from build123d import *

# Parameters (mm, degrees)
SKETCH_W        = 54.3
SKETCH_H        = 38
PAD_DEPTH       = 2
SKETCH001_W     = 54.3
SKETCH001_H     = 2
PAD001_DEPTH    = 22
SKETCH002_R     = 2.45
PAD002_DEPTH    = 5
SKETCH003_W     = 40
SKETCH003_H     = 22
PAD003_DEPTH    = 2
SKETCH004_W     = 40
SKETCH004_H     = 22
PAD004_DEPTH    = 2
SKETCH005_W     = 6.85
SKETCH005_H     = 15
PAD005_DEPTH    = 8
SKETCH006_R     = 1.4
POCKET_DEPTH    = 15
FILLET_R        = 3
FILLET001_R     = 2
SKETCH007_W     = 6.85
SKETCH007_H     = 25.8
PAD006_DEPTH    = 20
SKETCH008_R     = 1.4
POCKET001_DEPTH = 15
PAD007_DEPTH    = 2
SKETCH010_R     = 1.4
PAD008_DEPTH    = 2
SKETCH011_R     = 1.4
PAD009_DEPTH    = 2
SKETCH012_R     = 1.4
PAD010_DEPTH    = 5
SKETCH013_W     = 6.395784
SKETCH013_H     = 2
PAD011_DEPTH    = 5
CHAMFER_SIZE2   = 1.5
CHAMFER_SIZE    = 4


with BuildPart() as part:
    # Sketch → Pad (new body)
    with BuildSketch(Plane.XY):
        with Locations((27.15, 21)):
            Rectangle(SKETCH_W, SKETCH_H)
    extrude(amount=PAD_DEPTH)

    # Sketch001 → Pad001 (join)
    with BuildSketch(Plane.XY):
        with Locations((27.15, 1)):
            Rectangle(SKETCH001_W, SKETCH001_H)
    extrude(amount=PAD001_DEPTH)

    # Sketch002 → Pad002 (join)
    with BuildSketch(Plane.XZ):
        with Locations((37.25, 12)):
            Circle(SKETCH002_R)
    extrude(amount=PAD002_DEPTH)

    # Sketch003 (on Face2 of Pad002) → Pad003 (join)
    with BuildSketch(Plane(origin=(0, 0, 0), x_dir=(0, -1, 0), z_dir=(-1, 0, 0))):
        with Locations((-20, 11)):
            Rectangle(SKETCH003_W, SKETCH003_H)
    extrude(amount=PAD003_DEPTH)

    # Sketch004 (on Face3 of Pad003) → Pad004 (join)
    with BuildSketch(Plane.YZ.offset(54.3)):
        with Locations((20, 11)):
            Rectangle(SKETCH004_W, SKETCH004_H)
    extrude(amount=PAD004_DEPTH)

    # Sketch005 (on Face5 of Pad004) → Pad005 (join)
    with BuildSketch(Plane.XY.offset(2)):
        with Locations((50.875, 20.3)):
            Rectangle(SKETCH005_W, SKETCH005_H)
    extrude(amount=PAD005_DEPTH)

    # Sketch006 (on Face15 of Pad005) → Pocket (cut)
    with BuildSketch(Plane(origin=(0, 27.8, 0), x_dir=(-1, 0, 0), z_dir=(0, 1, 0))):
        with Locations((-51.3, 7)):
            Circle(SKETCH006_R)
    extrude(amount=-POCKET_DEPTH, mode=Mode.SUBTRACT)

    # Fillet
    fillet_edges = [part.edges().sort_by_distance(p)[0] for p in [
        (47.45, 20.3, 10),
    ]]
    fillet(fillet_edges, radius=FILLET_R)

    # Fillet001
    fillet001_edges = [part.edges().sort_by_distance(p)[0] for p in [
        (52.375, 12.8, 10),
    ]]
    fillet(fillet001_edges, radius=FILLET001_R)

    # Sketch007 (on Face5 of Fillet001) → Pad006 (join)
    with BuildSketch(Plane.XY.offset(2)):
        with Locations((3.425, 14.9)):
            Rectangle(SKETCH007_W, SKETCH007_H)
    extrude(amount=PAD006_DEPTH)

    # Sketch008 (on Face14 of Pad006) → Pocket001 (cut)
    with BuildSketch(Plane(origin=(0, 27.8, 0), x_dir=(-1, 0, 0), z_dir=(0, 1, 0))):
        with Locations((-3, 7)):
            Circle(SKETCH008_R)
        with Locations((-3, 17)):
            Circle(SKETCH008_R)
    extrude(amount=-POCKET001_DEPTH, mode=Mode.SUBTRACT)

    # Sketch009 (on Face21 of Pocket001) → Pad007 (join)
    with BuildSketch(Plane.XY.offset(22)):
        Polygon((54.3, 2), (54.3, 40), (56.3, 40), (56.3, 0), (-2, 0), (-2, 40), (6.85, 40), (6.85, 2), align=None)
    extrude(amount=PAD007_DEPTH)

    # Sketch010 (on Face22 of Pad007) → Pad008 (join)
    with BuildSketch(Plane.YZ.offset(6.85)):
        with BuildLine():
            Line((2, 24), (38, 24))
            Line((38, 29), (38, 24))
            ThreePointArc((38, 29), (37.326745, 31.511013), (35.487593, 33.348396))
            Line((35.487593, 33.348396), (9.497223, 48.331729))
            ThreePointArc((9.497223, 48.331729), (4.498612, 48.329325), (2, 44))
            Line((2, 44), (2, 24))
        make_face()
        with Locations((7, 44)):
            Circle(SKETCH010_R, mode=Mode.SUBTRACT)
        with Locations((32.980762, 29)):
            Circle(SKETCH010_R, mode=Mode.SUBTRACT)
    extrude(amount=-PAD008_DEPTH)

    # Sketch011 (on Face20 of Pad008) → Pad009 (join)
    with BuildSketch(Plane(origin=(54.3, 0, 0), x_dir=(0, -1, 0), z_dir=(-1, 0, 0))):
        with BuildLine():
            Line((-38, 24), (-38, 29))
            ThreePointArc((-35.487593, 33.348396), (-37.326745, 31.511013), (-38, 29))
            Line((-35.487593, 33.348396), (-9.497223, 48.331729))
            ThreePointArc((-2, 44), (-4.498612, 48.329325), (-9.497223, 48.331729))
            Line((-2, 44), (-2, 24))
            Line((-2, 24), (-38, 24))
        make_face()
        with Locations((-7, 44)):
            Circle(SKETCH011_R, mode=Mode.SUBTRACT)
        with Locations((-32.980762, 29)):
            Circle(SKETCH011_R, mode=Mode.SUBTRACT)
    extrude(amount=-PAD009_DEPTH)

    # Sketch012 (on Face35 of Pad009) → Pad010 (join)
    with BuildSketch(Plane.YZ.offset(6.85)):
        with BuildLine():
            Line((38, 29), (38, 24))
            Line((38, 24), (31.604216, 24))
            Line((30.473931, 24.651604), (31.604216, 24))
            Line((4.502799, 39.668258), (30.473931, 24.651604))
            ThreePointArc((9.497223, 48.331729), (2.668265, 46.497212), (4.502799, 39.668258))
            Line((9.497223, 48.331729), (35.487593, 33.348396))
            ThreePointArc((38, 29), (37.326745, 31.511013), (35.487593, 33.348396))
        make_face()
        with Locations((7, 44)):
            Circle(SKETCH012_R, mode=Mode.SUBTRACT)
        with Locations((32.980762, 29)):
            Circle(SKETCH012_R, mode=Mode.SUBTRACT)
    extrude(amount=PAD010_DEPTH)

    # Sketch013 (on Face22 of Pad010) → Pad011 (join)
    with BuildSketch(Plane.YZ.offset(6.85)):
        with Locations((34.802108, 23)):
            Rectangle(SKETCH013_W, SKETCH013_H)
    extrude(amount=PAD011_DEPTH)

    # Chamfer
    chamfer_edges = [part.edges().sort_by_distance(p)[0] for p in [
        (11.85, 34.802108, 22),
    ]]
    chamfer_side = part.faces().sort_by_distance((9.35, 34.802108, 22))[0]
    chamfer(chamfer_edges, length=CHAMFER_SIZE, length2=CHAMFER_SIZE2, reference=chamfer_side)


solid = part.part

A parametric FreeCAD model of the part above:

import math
import FreeCAD as App
import Part
import Sketcher
from FreeCAD import Vector


def edges_at(feature, points):
    """Names of the edges that pass closest to the given points."""
    edges = feature.Shape.Edges
    near = lambda p: min(range(len(edges)), key=lambda i: edges[i].distToShape(Part.Vertex(*p))[0])
    return sorted({f"Edge{near(p) + 1}" for p in points})


def add_polygon(sketch, points):
    """Adds a closed chain of lines whose ends are joined by coincident constraints."""
    first, n = sketch.GeometryCount, len(points)
    for a, b in zip(points, points[1:] + points[:1]):
        sketch.addGeometry(Part.LineSegment(App.Vector(*a, 0), App.Vector(*b, 0)), False)
    for i in range(n):
        sketch.addConstraint(Sketcher.Constraint("Coincident", first + i, 2, first + (i + 1) % n, 1))

doc = App.newDocument("Part")
body = doc.addObject("PartDesign::Body", "Body")

# Sketch on XY plane
sketch1 = doc.addObject("Sketcher::SketchObject", "Sketch")
body.addObject(sketch1)
sketch1.AttachmentSupport = (doc.XY_Plane, [""])
sketch1.MapMode = "FlatFace"
add_polygon(sketch1, [(0, 40), (0, 2), (54, 2), (54, 40)])  # lines 0-3
sketch1.addConstraint(Sketcher.Constraint("Vertical", 0))
sketch1.addConstraint(Sketcher.Constraint("Horizontal", 1))
sketch1.addConstraint(Sketcher.Constraint("Vertical", 2))
sketch1.addConstraint(Sketcher.Constraint("Horizontal", 3))
sketch1.addConstraint(Sketcher.Constraint("PointOnObject", 0, 2, -2))
sketch1.addConstraint(Sketcher.Constraint("DistanceY", 0, 2, 0, 1, 38.0))
sketch1.addConstraint(Sketcher.Constraint("DistanceX", 1, 1, 1, 2, 54.3))
sketch1.addConstraint(Sketcher.Constraint("DistanceY", -1, 1, 0, 2, 2.0))
pad1 = doc.addObject("PartDesign::Pad", "Pad")
body.addObject(pad1)
pad1.Profile = sketch1
pad1.Length = 2

# Sketch on XY plane
sketch2 = doc.addObject("Sketcher::SketchObject", "Sketch001")
body.addObject(sketch2)
sketch2.AttachmentSupport = (doc.XY_Plane, [""])
sketch2.MapMode = "FlatFace"
add_polygon(sketch2, [(0, 2), (0, 0), (54.3, 0), (54.3, 2)])  # lines 0-3
sketch2.addConstraint(Sketcher.Constraint("Vertical", 0))
sketch2.addConstraint(Sketcher.Constraint("Horizontal", 1))
sketch2.addConstraint(Sketcher.Constraint("Vertical", 2))
sketch2.addConstraint(Sketcher.Constraint("Horizontal", 3))
sketch2.addConstraint(Sketcher.Constraint("Coincident", 0, 2, -1, 1))
sketch2.addConstraint(Sketcher.Constraint("DistanceY", 0, 2, 0, 1, 2.0))
sketch2.addConstraint(Sketcher.Constraint("DistanceX", 1, 1, 1, 2, 54.3))
pad2 = doc.addObject("PartDesign::Pad", "Pad001")
body.addObject(pad2)
pad2.Profile = sketch2
pad2.Length = 22

# Sketch on XZ plane
sketch3 = doc.addObject("Sketcher::SketchObject", "Sketch002")
body.addObject(sketch3)
sketch3.AttachmentSupport = (doc.XZ_Plane, [""])
sketch3.MapMode = "FlatFace"
sketch3.addGeometry(Part.Circle(Vector(37.2, 12, 0), Vector(0, 0, 1), 2.5), False)
sketch3.addConstraint(Sketcher.Constraint("Diameter", 0, 4.9))
sketch3.addConstraint(Sketcher.Constraint("DistanceY", -1, 1, 0, 3, 12.0))
sketch3.addConstraint(Sketcher.Constraint("DistanceX", -1, 1, 0, 3, 37.25))
pad3 = doc.addObject("PartDesign::Pad", "Pad002")
body.addObject(pad3)
pad3.Profile = sketch3
pad3.Length = 5

# Sketch on YZ plane
sketch4 = doc.addObject("Sketcher::SketchObject", "Sketch003")
body.addObject(sketch4)
sketch4.AttachmentSupport = (doc.YZ_Plane, [""])
sketch4.MapMode = "FlatFace"
add_polygon(sketch4, [(40, 22), (40, 0), (0, 0), (0, 22)])  # lines 0-3
sketch4.addConstraint(Sketcher.Constraint("Vertical", 0))
sketch4.addConstraint(Sketcher.Constraint("Horizontal", 1))
sketch4.addConstraint(Sketcher.Constraint("Vertical", 2))
sketch4.addConstraint(Sketcher.Constraint("Horizontal", 3))
sketch4.addConstraint(Sketcher.Constraint("Coincident", 1, 2, -1, 1))
sketch4.addConstraint(Sketcher.Constraint("DistanceX", 1, 2, 1, 1, 40.0))
sketch4.addConstraint(Sketcher.Constraint("DistanceY", 0, 2, 0, 1, 22.0))
pad4 = doc.addObject("PartDesign::Pad", "Pad003")
body.addObject(pad4)
pad4.Profile = sketch4
pad4.Length = 2
pad4.Reversed = True

# Sketch on YZ plane
sketch5 = doc.addObject("Sketcher::SketchObject", "Sketch004")
body.addObject(sketch5)
sketch5.AttachmentSupport = (doc.YZ_Plane, [""])
sketch5.MapMode = "FlatFace"
sketch5.AttachmentOffset = App.Placement(Vector(0, 0, 54.3), App.Rotation())
add_polygon(sketch5, [(0, 22), (0, 0), (40, 0), (40, 22)])  # lines 0-3
sketch5.addConstraint(Sketcher.Constraint("Vertical", 0))
sketch5.addConstraint(Sketcher.Constraint("Horizontal", 1))
sketch5.addConstraint(Sketcher.Constraint("Vertical", 2))
sketch5.addConstraint(Sketcher.Constraint("Horizontal", 3))
sketch5.addConstraint(Sketcher.Constraint("Coincident", 0, 2, -1, 1))
sketch5.addConstraint(Sketcher.Constraint("DistanceX", 1, 1, 1, 2, 40.0))
sketch5.addConstraint(Sketcher.Constraint("DistanceY", 0, 2, 0, 1, 22.0))
pad5 = doc.addObject("PartDesign::Pad", "Pad004")
body.addObject(pad5)
pad5.Profile = sketch5
pad5.Length = 2

# Sketch on XY plane
sketch6 = doc.addObject("Sketcher::SketchObject", "Sketch005")
body.addObject(sketch6)
sketch6.AttachmentSupport = (doc.XY_Plane, [""])
sketch6.MapMode = "FlatFace"
sketch6.AttachmentOffset = App.Placement(Vector(0, 0, 2), App.Rotation())
add_polygon(sketch6, [(47, 28), (47, 13), (54, 13), (54, 28)])  # lines 0-3
sketch6.addConstraint(Sketcher.Constraint("Vertical", 0))
sketch6.addConstraint(Sketcher.Constraint("Horizontal", 1))
sketch6.addConstraint(Sketcher.Constraint("Vertical", 2))
sketch6.addConstraint(Sketcher.Constraint("Horizontal", 3))
sketch6.addConstraint(Sketcher.Constraint("DistanceY", 0, 2, 0, 1, 15.0))
sketch6.addConstraint(Sketcher.Constraint("DistanceX", 1, 1, 1, 2, 6.85))
sketch6.addConstraint(Sketcher.Constraint("DistanceY", -1, 1, 0, 2, 12.8))
sketch6.addConstraint(Sketcher.Constraint("DistanceX", -1, 1, 1, 2, 54.3))
pad6 = doc.addObject("PartDesign::Pad", "Pad005")
body.addObject(pad6)
pad6.Profile = sketch6
pad6.Length = 8

# Sketch on XZ plane
sketch7 = doc.addObject("Sketcher::SketchObject", "Sketch006")
body.addObject(sketch7)
sketch7.AttachmentSupport = (doc.XZ_Plane, [""])
sketch7.MapMode = "FlatFace"
sketch7.AttachmentOffset = App.Placement(Vector(0, 0, -27.8), App.Rotation())
sketch7.addGeometry(Part.Circle(Vector(51.3, 7, 0), Vector(0, 0, 1), 1.4), False)
sketch7.addConstraint(Sketcher.Constraint("Diameter", 0, 2.8))
sketch7.addConstraint(Sketcher.Constraint("DistanceY", -1, 1, 0, 3, 7.0))
sketch7.addConstraint(Sketcher.Constraint("DistanceX", -1, 1, 0, 3, 51.3))
pocket1 = doc.addObject("PartDesign::Pocket", "Pocket")
body.addObject(pocket1)
pocket1.Profile = sketch7
pocket1.Length = 15
pocket1.Reversed = True
doc.recompute()

fillet = doc.addObject("PartDesign::Fillet", "Fillet")
body.addObject(fillet)
fillet.Base = (pocket1, edges_at(pocket1, [(47.45, 20.3, 10)]))
fillet.Radius = 3
doc.recompute()

fillet2 = doc.addObject("PartDesign::Fillet", "Fillet001")
body.addObject(fillet2)
fillet2.Base = (fillet, edges_at(fillet, [(52.375, 12.8, 10)]))
fillet2.Radius = 2

# Sketch on XY plane
sketch8 = doc.addObject("Sketcher::SketchObject", "Sketch007")
body.addObject(sketch8)
sketch8.AttachmentSupport = (doc.XY_Plane, [""])
sketch8.MapMode = "FlatFace"
sketch8.AttachmentOffset = App.Placement(Vector(0, 0, 2), App.Rotation())
add_polygon(sketch8, [(0, 28), (0, 2), (7, 2), (7, 28)])  # lines 0-3
sketch8.addConstraint(Sketcher.Constraint("Vertical", 0))
sketch8.addConstraint(Sketcher.Constraint("Horizontal", 1))
sketch8.addConstraint(Sketcher.Constraint("Vertical", 2))
sketch8.addConstraint(Sketcher.Constraint("Horizontal", 3))
sketch8.addConstraint(Sketcher.Constraint("PointOnObject", 0, 2, -2))
sketch8.addConstraint(Sketcher.Constraint("DistanceY", 0, 2, 0, 1, 25.8))
sketch8.addConstraint(Sketcher.Constraint("DistanceY", -1, 1, 0, 2, 2.0))
sketch8.addConstraint(Sketcher.Constraint("DistanceX", 1, 1, 1, 2, 6.85))
pad7 = doc.addObject("PartDesign::Pad", "Pad006")
body.addObject(pad7)
pad7.Profile = sketch8
pad7.Length = 20

# Sketch on XZ plane
sketch9 = doc.addObject("Sketcher::SketchObject", "Sketch008")
body.addObject(sketch9)
sketch9.AttachmentSupport = (doc.XZ_Plane, [""])
sketch9.MapMode = "FlatFace"
sketch9.AttachmentOffset = App.Placement(Vector(0, 0, -27.8), App.Rotation())
sketch9.addGeometry(Part.Circle(Vector(3, 7, 0), Vector(0, 0, 1), 1.4), False)
sketch9.addGeometry(Part.Circle(Vector(3, 17, 0), Vector(0, 0, 1), 1.4), False)
sketch9.addConstraint(Sketcher.Constraint("Equal", 0, 1))
sketch9.addConstraint(Sketcher.Constraint("Vertical", 0, 3, 1, 3))
sketch9.addConstraint(Sketcher.Constraint("Diameter", 0, 2.8))
sketch9.addConstraint(Sketcher.Constraint("DistanceX", -1, 1, 0, 3, 3.0))
sketch9.addConstraint(Sketcher.Constraint("DistanceY", -1, 1, 0, 3, 7.0))
sketch9.addConstraint(Sketcher.Constraint("DistanceY", -1, 1, 1, 3, 17.0))
pocket2 = doc.addObject("PartDesign::Pocket", "Pocket001")
body.addObject(pocket2)
pocket2.Profile = sketch9
pocket2.Length = 15
pocket2.Reversed = True

# Sketch on XY plane
sketch10 = doc.addObject("Sketcher::SketchObject", "Sketch009")
body.addObject(sketch10)
sketch10.AttachmentSupport = (doc.XY_Plane, [""])
sketch10.MapMode = "FlatFace"
sketch10.AttachmentOffset = App.Placement(Vector(0, 0, 22), App.Rotation())
add_polygon(sketch10, [(54.3, 40), (54.3, 2), (6.8, 2), (6.8, 40), (-2, 40), (-2, 0), (56.3, 0), (56.3, 40)])  # lines 0-7
sketch10.addConstraint(Sketcher.Constraint("Vertical", 0))
sketch10.addConstraint(Sketcher.Constraint("Horizontal", 1))
sketch10.addConstraint(Sketcher.Constraint("Vertical", 2))
sketch10.addConstraint(Sketcher.Constraint("Horizontal", 3))
sketch10.addConstraint(Sketcher.Constraint("Vertical", 4))
sketch10.addConstraint(Sketcher.Constraint("Horizontal", 5))
sketch10.addConstraint(Sketcher.Constraint("Vertical", 6))
sketch10.addConstraint(Sketcher.Constraint("Horizontal", 7))
sketch10.addConstraint(Sketcher.Constraint("PointOnObject", 4, 2, -1))
sketch10.addConstraint(Sketcher.Constraint("Horizontal", 3, 2, 6, 2))
sketch10.addConstraint(Sketcher.Constraint("DistanceX", 7, 2, 7, 1, 2.0))
sketch10.addConstraint(Sketcher.Constraint("DistanceY", 0, 2, 0, 1, 38.0))
sketch10.addConstraint(Sketcher.Constraint("DistanceY", 4, 2, 4, 1, 40.0))
sketch10.addConstraint(Sketcher.Constraint("DistanceX", 5, 1, 5, 2, 58.3))
sketch10.addConstraint(Sketcher.Constraint("DistanceX", 3, 2, -1, 1, 2.0))
sketch10.addConstraint(Sketcher.Constraint("DistanceX", 1, 2, 1, 1, 47.45))
pad8 = doc.addObject("PartDesign::Pad", "Pad007")
body.addObject(pad8)
pad8.Profile = sketch10
pad8.Length = 2

# Sketch on YZ plane
sketch11 = doc.addObject("Sketcher::SketchObject", "Sketch010")
body.addObject(sketch11)
sketch11.AttachmentSupport = (doc.YZ_Plane, [""])
sketch11.MapMode = "FlatFace"
sketch11.AttachmentOffset = App.Placement(Vector(0, 0, 6.85), App.Rotation())
sketch11.addGeometry(Part.LineSegment(Vector(2, 24, 0), Vector(38, 24, 0)), False)
sketch11.addGeometry(Part.LineSegment(Vector(38, 24, 0), Vector(38, 29, 0)), False)
sketch11.addGeometry(Part.ArcOfCircle(Part.Circle(Vector(33, 29, 0), Vector(0, 0, 1), 5), math.radians(0), math.radians(60)), False)
sketch11.addGeometry(Part.LineSegment(Vector(35.5, 33.3, 0), Vector(9.5, 48.3, 0)), False)
sketch11.addGeometry(Part.ArcOfCircle(Part.Circle(Vector(7, 44, 0), Vector(0, 0, 1), 5), math.radians(60), math.radians(180)), False)
sketch11.addGeometry(Part.LineSegment(Vector(2, 44, 0), Vector(2, 24, 0)), False)
sketch11.addGeometry(Part.Circle(Vector(33, 29, 0), Vector(0, 0, 1), 1.4), False)
sketch11.addGeometry(Part.Circle(Vector(7, 44, 0), Vector(0, 0, 1), 1.4), False)
sketch11.addConstraint(Sketcher.Constraint("Coincident", 0, 2, 1, 1))
sketch11.addConstraint(Sketcher.Constraint("Tangent", 1, 2, 2, 1))
sketch11.addConstraint(Sketcher.Constraint("Tangent", 2, 2, 3, 1))
sketch11.addConstraint(Sketcher.Constraint("Tangent", 3, 2, 4, 1))
sketch11.addConstraint(Sketcher.Constraint("Tangent", 4, 2, 5, 1))
sketch11.addConstraint(Sketcher.Constraint("Coincident", 5, 2, 0, 1))
sketch11.addConstraint(Sketcher.Constraint("Horizontal", 0))
sketch11.addConstraint(Sketcher.Constraint("Vertical", 1))
sketch11.addConstraint(Sketcher.Constraint("Vertical", 5))
sketch11.addConstraint(Sketcher.Constraint("Coincident", 6, 3, 2, 3))
sketch11.addConstraint(Sketcher.Constraint("Coincident", 7, 3, 4, 3))
sketch11.addConstraint(Sketcher.Constraint("Equal", 6, 7))
sketch11.addConstraint(Sketcher.Constraint("Radius", 4, 5.0))
sketch11.addConstraint(Sketcher.Constraint("Diameter", 6, 2.8))
sketch11.addConstraint(Sketcher.Constraint("DistanceX", 0, 1, 0, 2, 36.0))
sketch11.addConstraint(Sketcher.Constraint("DistanceY", 1, 1, 1, 2, 5.0))
sketch11.addConstraint(Sketcher.Constraint("DistanceY", 5, 2, 5, 1, 20.0))
sketch11.addConstraint(Sketcher.Constraint("DistanceY", -1, 1, 2, 3, 29.000002))
sketch11.addConstraint(Sketcher.Constraint("DistanceX", -1, 1, 4, 3, 7.0))
sketch11.addConstraint(Sketcher.Constraint("Radius", 2, 5.019235))
pad9 = doc.addObject("PartDesign::Pad", "Pad008")
body.addObject(pad9)
pad9.Profile = sketch11
pad9.Length = 2
pad9.Reversed = True

# Sketch on YZ plane
sketch12 = doc.addObject("Sketcher::SketchObject", "Sketch011")
body.addObject(sketch12)
sketch12.AttachmentSupport = (doc.YZ_Plane, [""])
sketch12.MapMode = "FlatFace"
sketch12.AttachmentOffset = App.Placement(Vector(0, 0, 54.3), App.Rotation())
sketch12.addGeometry(Part.LineSegment(Vector(38, 29, 0), Vector(38, 24, 0)), False)
sketch12.addGeometry(Part.LineSegment(Vector(38, 24, 0), Vector(2, 24, 0)), False)
sketch12.addGeometry(Part.LineSegment(Vector(2, 24, 0), Vector(2, 44, 0)), False)
sketch12.addGeometry(Part.ArcOfCircle(Part.Circle(Vector(7, 44, 0), Vector(0, 0, 1), 5), math.radians(60), math.radians(180)), False)
sketch12.addGeometry(Part.LineSegment(Vector(9.5, 48.3, 0), Vector(35.5, 33.3, 0)), False)
sketch12.addGeometry(Part.ArcOfCircle(Part.Circle(Vector(33, 29, 0), Vector(0, 0, 1), 5), math.radians(0), math.radians(60)), False)
sketch12.addGeometry(Part.Circle(Vector(33, 29, 0), Vector(0, 0, 1), 1.4), False)
sketch12.addGeometry(Part.Circle(Vector(7, 44, 0), Vector(0, 0, 1), 1.4), False)
sketch12.addConstraint(Sketcher.Constraint("Coincident", 0, 2, 1, 1))
sketch12.addConstraint(Sketcher.Constraint("Coincident", 1, 2, 2, 1))
sketch12.addConstraint(Sketcher.Constraint("Tangent", 2, 2, 3, 2))
sketch12.addConstraint(Sketcher.Constraint("Tangent", 3, 1, 4, 1))
sketch12.addConstraint(Sketcher.Constraint("Tangent", 4, 2, 5, 2))
sketch12.addConstraint(Sketcher.Constraint("Tangent", 5, 1, 0, 1))
sketch12.addConstraint(Sketcher.Constraint("Vertical", 0))
sketch12.addConstraint(Sketcher.Constraint("Horizontal", 1))
sketch12.addConstraint(Sketcher.Constraint("Vertical", 2))
sketch12.addConstraint(Sketcher.Constraint("Coincident", 6, 3, 5, 3))
sketch12.addConstraint(Sketcher.Constraint("Coincident", 7, 3, 3, 3))
sketch12.addConstraint(Sketcher.Constraint("Equal", 6, 7))
sketch12.addConstraint(Sketcher.Constraint("Radius", 3, 5.0))
sketch12.addConstraint(Sketcher.Constraint("Diameter", 6, 2.8))
sketch12.addConstraint(Sketcher.Constraint("DistanceX", 1, 2, 1, 1, 36.0))
sketch12.addConstraint(Sketcher.Constraint("DistanceY", 0, 2, 0, 1, 5.0))
sketch12.addConstraint(Sketcher.Constraint("DistanceY", 2, 1, 2, 2, 20.0))
sketch12.addConstraint(Sketcher.Constraint("DistanceX", -1, 1, 3, 3, 7.0))
sketch12.addConstraint(Sketcher.Constraint("DistanceY", -1, 1, 3, 3, 44.0))
sketch12.addConstraint(Sketcher.Constraint("Radius", 5, 5.019235))
pad10 = doc.addObject("PartDesign::Pad", "Pad009")
body.addObject(pad10)
pad10.Profile = sketch12
pad10.Length = 2

# Sketch on YZ plane
sketch13 = doc.addObject("Sketcher::SketchObject", "Sketch012")
body.addObject(sketch13)
sketch13.AttachmentSupport = (doc.YZ_Plane, [""])
sketch13.MapMode = "FlatFace"
sketch13.AttachmentOffset = App.Placement(Vector(0, 0, 6.85), App.Rotation())
sketch13.addGeometry(Part.LineSegment(Vector(38, 24, 0), Vector(38, 29, 0)), False)
sketch13.addGeometry(Part.ArcOfCircle(Part.Circle(Vector(33, 29, 0), Vector(0, 0, 1), 5), math.radians(0), math.radians(60)), False)
sketch13.addGeometry(Part.LineSegment(Vector(35.5, 33.3, 0), Vector(9.5, 48.3, 0)), False)
sketch13.addGeometry(Part.ArcOfCircle(Part.Circle(Vector(7, 44, 0), Vector(0, 0, 1), 5), math.radians(60), math.radians(240)), False)
sketch13.addGeometry(Part.LineSegment(Vector(4.5, 39.7, 0), Vector(30.5, 24.7, 0)), False)
sketch13.addGeometry(Part.LineSegment(Vector(30.5, 24.7, 0), Vector(31.6, 24, 0)), False)
sketch13.addGeometry(Part.LineSegment(Vector(31.6, 24, 0), Vector(38, 24, 0)), False)
sketch13.addGeometry(Part.Circle(Vector(33, 29, 0), Vector(0, 0, 1), 1.4), False)
sketch13.addGeometry(Part.Circle(Vector(7, 44, 0), Vector(0, 0, 1), 1.4), False)
sketch13.addConstraint(Sketcher.Constraint("Tangent", 0, 2, 1, 1))
sketch13.addConstraint(Sketcher.Constraint("Tangent", 1, 2, 2, 1))
sketch13.addConstraint(Sketcher.Constraint("Tangent", 2, 2, 3, 1))
sketch13.addConstraint(Sketcher.Constraint("Coincident", 3, 2, 4, 1))
sketch13.addConstraint(Sketcher.Constraint("Coincident", 4, 2, 5, 1))
sketch13.addConstraint(Sketcher.Constraint("Coincident", 5, 2, 6, 1))
sketch13.addConstraint(Sketcher.Constraint("Coincident", 6, 2, 0, 1))
sketch13.addConstraint(Sketcher.Constraint("Vertical", 0))
sketch13.addConstraint(Sketcher.Constraint("Horizontal", 6))
sketch13.addConstraint(Sketcher.Constraint("Coincident", 7, 3, 1, 3))
sketch13.addConstraint(Sketcher.Constraint("Coincident", 8, 3, 3, 3))
sketch13.addConstraint(Sketcher.Constraint("Equal", 7, 8))
sketch13.addConstraint(Sketcher.Constraint("Parallel", 2, 5))
sketch13.addConstraint(Sketcher.Constraint("Equal", 2, 4))
sketch13.addConstraint(Sketcher.Constraint("Radius", 3, 5.0))
sketch13.addConstraint(Sketcher.Constraint("Diameter", 7, 2.8))
sketch13.addConstraint(Sketcher.Constraint("DistanceY", 0, 1, 0, 2, 5.0))
sketch13.addConstraint(Sketcher.Constraint("DistanceY", -1, 1, 1, 3, 29.000002))
sketch13.addConstraint(Sketcher.Constraint("DistanceX", -1, 1, 3, 3, 7.0))
sketch13.addConstraint(Sketcher.Constraint("DistanceY", -1, 1, 3, 3, 44.0))
sketch13.addConstraint(Sketcher.Constraint("DistanceX", -1, 1, 0, 2, 38.0))
sketch13.addConstraint(Sketcher.Constraint("Radius", 1, 5.019235))
sketch13.addConstraint(Sketcher.Constraint("DistanceX", -1, 1, 3, 2, 4.502799))
sketch13.addConstraint(Sketcher.Constraint("DistanceX", 6, 1, 6, 2, 6.395784))
pad11 = doc.addObject("PartDesign::Pad", "Pad010")
body.addObject(pad11)
pad11.Profile = sketch13
pad11.Length = 5

# Sketch on YZ plane
sketch14 = doc.addObject("Sketcher::SketchObject", "Sketch013")
body.addObject(sketch14)
sketch14.AttachmentSupport = (doc.YZ_Plane, [""])
sketch14.MapMode = "FlatFace"
sketch14.AttachmentOffset = App.Placement(Vector(0, 0, 6.85), App.Rotation())
add_polygon(sketch14, [(31.6, 24), (31.6, 22), (38, 22), (38, 24)])  # lines 0-3
sketch14.addConstraint(Sketcher.Constraint("Vertical", 0))
sketch14.addConstraint(Sketcher.Constraint("Horizontal", 1))
sketch14.addConstraint(Sketcher.Constraint("Vertical", 2))
sketch14.addConstraint(Sketcher.Constraint("Horizontal", 3))
sketch14.addConstraint(Sketcher.Constraint("DistanceY", 0, 2, 0, 1, 2.0))
sketch14.addConstraint(Sketcher.Constraint("DistanceY", -1, 1, 0, 2, 22.0))
sketch14.addConstraint(Sketcher.Constraint("DistanceX", -1, 1, 1, 2, 38.0))
sketch14.addConstraint(Sketcher.Constraint("DistanceX", 1, 1, 1, 2, 6.395784))
pad12 = doc.addObject("PartDesign::Pad", "Pad011")
body.addObject(pad12)
pad12.Profile = sketch14
pad12.Length = 5
doc.recompute()

chamfer = doc.addObject("PartDesign::Chamfer", "Chamfer")
body.addObject(chamfer)
chamfer.Base = (pad12, edges_at(pad12, [(11.85, 34.802, 22)]))
chamfer.ChamferType = "Two distances"
chamfer.Size = 4
chamfer.Size2 = 1.5

doc.recompute()
